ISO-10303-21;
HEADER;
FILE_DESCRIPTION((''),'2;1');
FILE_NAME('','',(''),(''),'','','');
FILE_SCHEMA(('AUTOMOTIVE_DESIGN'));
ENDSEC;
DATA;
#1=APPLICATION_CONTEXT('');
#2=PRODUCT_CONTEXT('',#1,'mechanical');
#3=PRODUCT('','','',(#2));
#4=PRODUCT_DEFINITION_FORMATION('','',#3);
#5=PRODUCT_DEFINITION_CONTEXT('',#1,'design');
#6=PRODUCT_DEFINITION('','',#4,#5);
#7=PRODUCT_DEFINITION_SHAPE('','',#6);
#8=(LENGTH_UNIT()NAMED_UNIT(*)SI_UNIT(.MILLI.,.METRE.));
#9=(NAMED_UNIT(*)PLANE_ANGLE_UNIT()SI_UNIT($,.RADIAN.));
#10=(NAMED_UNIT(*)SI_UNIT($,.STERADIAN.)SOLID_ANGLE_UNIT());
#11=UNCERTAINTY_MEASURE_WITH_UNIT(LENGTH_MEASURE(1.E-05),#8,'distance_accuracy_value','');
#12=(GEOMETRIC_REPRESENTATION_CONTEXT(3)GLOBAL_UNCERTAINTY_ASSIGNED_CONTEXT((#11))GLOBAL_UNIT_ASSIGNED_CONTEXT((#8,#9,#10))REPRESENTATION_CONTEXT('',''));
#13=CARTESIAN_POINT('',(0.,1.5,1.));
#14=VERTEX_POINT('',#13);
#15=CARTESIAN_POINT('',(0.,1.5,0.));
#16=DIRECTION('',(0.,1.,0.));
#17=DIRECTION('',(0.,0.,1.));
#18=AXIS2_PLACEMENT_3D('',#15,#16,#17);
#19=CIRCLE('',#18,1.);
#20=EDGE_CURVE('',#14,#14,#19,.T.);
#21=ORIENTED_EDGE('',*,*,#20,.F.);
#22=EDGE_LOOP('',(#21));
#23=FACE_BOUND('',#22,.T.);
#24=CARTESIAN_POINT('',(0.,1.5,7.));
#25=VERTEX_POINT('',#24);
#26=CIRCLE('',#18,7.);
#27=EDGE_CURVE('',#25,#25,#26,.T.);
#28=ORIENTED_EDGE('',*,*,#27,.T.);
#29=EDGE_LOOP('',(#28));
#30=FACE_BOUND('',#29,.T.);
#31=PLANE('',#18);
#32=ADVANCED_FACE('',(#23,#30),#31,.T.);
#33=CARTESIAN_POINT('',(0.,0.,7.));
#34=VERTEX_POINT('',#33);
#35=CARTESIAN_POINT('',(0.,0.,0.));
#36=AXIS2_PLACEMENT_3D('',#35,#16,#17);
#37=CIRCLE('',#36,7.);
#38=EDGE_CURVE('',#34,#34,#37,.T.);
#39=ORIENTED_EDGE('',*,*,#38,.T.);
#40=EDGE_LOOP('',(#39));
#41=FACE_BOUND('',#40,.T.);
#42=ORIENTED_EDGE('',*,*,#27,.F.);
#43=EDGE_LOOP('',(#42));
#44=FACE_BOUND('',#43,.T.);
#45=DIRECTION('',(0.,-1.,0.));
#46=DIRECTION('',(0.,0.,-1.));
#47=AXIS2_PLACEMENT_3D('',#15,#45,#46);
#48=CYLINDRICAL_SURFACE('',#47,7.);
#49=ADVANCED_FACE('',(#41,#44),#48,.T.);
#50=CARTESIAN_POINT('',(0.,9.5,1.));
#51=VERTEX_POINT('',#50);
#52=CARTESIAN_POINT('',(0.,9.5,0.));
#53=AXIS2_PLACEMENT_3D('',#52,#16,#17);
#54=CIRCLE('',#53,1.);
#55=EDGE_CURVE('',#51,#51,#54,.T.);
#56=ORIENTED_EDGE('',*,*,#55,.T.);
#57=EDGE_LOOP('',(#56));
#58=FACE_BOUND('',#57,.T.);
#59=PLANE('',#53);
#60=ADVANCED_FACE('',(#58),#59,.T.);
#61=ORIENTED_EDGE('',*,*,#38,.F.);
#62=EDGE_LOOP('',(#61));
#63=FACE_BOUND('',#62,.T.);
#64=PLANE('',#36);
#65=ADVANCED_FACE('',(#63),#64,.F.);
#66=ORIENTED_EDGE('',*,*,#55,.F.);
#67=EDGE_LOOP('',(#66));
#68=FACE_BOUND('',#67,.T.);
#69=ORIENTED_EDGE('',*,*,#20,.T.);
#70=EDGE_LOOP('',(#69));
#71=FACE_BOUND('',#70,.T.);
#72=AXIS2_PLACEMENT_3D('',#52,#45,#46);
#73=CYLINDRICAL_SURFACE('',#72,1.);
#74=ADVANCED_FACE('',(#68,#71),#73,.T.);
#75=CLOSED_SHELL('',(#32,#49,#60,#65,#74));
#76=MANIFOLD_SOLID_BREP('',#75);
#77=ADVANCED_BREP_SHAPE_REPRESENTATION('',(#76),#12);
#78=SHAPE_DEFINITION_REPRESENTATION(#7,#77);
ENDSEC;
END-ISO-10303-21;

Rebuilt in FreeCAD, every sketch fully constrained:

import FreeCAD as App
import Part
import Sketcher
Q = App.Units.Quantity

doc = App.newDocument("Part")
body = doc.addObject("PartDesign::Body", "Body")

# Sketch on XZ plane
sketch1 = body.newObject("Sketcher::SketchObject", "Sketch")
sketch1.AttachmentSupport = (doc.getObject("XZ_Plane"), [""])
sketch1.MapMode = "FlatFace"
sketch1.addGeometry(Part.Circle(App.Vector(0, 0, 0), App.Vector(0, 0, 1), 7), False)
sketch1.addConstraint(Sketcher.Constraint("Coincident", 0, 3, -1, 1))
sketch1.addConstraint(Sketcher.Constraint("Diameter", 0, Q("14 mm")))
pad1 = body.newObject("PartDesign::Pad", "Pad")
pad1.Profile = sketch1
pad1.Length = 1.5
pad1.Reversed = True

# Sketch on XZ plane
sketch2 = body.newObject("Sketcher::SketchObject", "Sketch001")
sketch2.AttachmentSupport = (doc.getObject("XZ_Plane"), [""])
sketch2.MapMode = "FlatFace"
sketch2.AttachmentOffset = App.Placement(App.Vector(0, 0, -1.5), App.Rotation())
sketch2.addGeometry(Part.Circle(App.Vector(0, 0, 0), App.Vector(0, 0, 1), 1), False)
sketch2.addConstraint(Sketcher.Constraint("Coincident", 0, 3, -1, 1))
sketch2.addConstraint(Sketcher.Constraint("Diameter", 0, Q("2 mm")))
pad2 = body.newObject("PartDesign::Pad", "Pad001")
pad2.Profile = sketch2
pad2.Length = 8
pad2.Reversed = True

doc.recompute()
